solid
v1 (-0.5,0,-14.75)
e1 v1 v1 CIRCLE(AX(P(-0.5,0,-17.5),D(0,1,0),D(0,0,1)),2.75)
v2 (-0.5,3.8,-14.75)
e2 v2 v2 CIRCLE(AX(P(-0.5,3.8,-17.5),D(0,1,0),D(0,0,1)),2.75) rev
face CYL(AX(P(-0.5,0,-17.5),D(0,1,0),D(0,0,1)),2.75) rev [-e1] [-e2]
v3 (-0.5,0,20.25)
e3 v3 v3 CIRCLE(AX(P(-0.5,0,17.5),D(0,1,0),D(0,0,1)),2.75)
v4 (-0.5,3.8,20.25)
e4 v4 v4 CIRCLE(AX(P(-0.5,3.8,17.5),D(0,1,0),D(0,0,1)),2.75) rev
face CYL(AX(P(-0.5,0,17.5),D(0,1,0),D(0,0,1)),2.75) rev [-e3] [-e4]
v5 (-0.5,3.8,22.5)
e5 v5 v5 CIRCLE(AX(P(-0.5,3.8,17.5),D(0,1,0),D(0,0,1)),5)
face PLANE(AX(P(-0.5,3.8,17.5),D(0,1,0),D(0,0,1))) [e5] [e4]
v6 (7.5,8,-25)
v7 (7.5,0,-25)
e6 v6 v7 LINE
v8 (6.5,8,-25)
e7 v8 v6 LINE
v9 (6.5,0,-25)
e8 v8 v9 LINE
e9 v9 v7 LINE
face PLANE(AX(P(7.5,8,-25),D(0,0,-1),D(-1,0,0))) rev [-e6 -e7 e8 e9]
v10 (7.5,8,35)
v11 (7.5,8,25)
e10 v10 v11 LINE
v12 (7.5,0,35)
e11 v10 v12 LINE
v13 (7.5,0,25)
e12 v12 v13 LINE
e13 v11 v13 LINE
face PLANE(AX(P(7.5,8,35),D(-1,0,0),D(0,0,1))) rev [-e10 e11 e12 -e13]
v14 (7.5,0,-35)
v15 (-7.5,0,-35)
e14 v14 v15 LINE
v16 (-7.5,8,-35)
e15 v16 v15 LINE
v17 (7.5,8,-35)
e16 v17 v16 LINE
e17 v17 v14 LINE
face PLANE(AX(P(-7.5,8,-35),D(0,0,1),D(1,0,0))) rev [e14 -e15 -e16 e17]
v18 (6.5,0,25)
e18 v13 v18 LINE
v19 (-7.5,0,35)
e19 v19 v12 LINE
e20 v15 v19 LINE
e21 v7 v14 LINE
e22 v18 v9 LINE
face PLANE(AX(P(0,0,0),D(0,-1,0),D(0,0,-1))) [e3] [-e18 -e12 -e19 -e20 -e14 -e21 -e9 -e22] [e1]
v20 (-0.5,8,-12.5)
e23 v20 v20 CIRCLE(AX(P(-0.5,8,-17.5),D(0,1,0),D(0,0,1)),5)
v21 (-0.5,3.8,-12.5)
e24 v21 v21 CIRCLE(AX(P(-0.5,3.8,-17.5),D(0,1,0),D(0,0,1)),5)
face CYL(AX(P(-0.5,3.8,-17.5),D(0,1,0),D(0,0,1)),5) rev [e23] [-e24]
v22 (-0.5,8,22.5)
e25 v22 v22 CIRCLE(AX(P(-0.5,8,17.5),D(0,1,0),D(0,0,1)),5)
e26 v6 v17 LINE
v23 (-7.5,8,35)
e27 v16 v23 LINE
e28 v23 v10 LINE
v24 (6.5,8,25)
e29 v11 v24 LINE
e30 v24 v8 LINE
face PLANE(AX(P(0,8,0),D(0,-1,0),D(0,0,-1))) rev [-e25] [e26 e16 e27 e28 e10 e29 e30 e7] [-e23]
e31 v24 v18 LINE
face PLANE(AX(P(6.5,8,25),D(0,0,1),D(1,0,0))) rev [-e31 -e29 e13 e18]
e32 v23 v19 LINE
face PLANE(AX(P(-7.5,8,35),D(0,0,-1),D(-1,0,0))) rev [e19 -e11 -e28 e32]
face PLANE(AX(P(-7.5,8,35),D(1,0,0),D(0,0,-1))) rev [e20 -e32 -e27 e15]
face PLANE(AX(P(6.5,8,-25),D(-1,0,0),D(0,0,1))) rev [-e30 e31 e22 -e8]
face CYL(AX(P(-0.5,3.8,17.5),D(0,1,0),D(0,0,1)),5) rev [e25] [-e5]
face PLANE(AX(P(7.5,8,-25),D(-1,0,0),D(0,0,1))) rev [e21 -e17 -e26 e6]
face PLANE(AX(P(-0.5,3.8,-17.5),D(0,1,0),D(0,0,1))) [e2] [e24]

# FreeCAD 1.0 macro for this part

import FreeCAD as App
import Part
import Sketcher
Q = App.Units.Quantity

doc = App.newDocument("Part")
body = doc.addObject("PartDesign::Body", "Body")

sketch1 = body.newObject("Sketcher::SketchObject", "Sketch")
sketch1.AttachmentSupport = (doc.getObject("XZ_Plane"), [""])
sketch1.MapMode = "FlatFace"
sketch1.addGeometry(Part.LineSegment(App.Vector(6.5, -25, 0), App.Vector(7.5, -25, 0)), False)
sketch1.addGeometry(Part.LineSegment(App.Vector(7.5, -25, 0), App.Vector(7.5, -35, 0)), False)
sketch1.addGeometry(Part.LineSegment(App.Vector(7.5, -35, 0), App.Vector(-7.5, -35, 0)), False)
sketch1.addGeometry(Part.LineSegment(App.Vector(-7.5, -35, 0), App.Vector(-7.5, 35, 0)), False)
sketch1.addGeometry(Part.LineSegment(App.Vector(-7.5, 35, 0), App.Vector(7.5, 35, 0)), False)
sketch1.addGeometry(Part.LineSegment(App.Vector(7.5, 35, 0), App.Vector(7.5, 25, 0)), False)
sketch1.addGeometry(Part.LineSegment(App.Vector(7.5, 25, 0), App.Vector(6.5, 25, 0)), False)
sketch1.addGeometry(Part.LineSegment(App.Vector(6.5, 25, 0), App.Vector(6.5, -25, 0)), False)
sketch1.addConstraint(Sketcher.Constraint("Coincident", 0, 2, 1, 1))
sketch1.addConstraint(Sketcher.Constraint("Coincident", 1, 2, 2, 1))
sketch1.addConstraint(Sketcher.Constraint("Coincident", 2, 2, 3, 1))
sketch1.addConstraint(Sketcher.Constraint("Coincident", 3, 2, 4, 1))
sketch1.addConstraint(Sketcher.Constraint("Coincident", 4, 2, 5, 1))
sketch1.addConstraint(Sketcher.Constraint("Coincident", 5, 2, 6, 1))
sketch1.addConstraint(Sketcher.Constraint("Coincident", 6, 2, 7, 1))
sketch1.addConstraint(Sketcher.Constraint("Coincident", 7, 2, 0, 1))
sketch1.addConstraint(Sketcher.Constraint("Horizontal", 0))
sketch1.addConstraint(Sketcher.Constraint("Vertical", 1))
sketch1.addConstraint(Sketcher.Constraint("Horizontal", 2))
sketch1.addConstraint(Sketcher.Constraint("Vertical", 3))
sketch1.addConstraint(Sketcher.Constraint("Horizontal", 4))
sketch1.addConstraint(Sketcher.Constraint("Vertical", 5))
sketch1.addConstraint(Sketcher.Constraint("Horizontal", 6))
sketch1.addConstraint(Sketcher.Constraint("Vertical", 7))
sketch1.addConstraint(Sketcher.Constraint("Symmetric", 1, 2, 3, 2, -1, 1))
sketch1.addConstraint(Sketcher.Constraint("Symmetric", 0, 2, 5, 2, -1))
sketch1.addConstraint(Sketcher.Constraint("DistanceX", 0, 1, 0, 2, Q("1 mm")))
sketch1.addConstraint(Sketcher.Constraint("DistanceX", 2, 2, 2, 1, Q("15 mm")))
sketch1.addConstraint(Sketcher.Constraint("DistanceY", 1, 2, 1, 1, Q("10 mm")))
sketch1.addConstraint(Sketcher.Constraint("DistanceY", 3, 1, 3, 2, Q("70 mm")))
pad1 = body.newObject("PartDesign::Pad", "Pad")
pad1.Profile = sketch1
pad1.Length = 8
pad1.Reversed = True

sketch2 = body.newObject("Sketcher::SketchObject", "Sketch001")
sketch2.AttachmentSupport = (doc.getObject("XZ_Plane"), [""])
sketch2.MapMode = "FlatFace"
sketch2.AttachmentOffset = App.Placement(App.Vector(0, 0, -8), App.Rotation())
sketch2.addGeometry(Part.Circle(App.Vector(-0.5, -17.5, 0), App.Vector(0, 0, 1), 2.8), False)
sketch2.addGeometry(Part.Circle(App.Vector(-0.5, 17.5, 0), App.Vector(0, 0, 1), 2.8), False)
sketch2.addConstraint(Sketcher.Constraint("Equal", 0, 1))
sketch2.addConstraint(Sketcher.Constraint("Symmetric", 0, 3, 1, 3, -1))
sketch2.addConstraint(Sketcher.Constraint("Diameter", 0, Q("5.5 mm")))
sketch2.addConstraint(Sketcher.Constraint("DistanceY", 0, 3, 1, 3, Q("35 mm")))
sketch2.addConstraint(Sketcher.Constraint("DistanceX", 0, 3, -1, 1, Q("0.5 mm")))
pocket1 = body.newObject("PartDesign::Pocket", "Pocket")
pocket1.Profile = sketch2
pocket1.Type = "ThroughAll"
pocket1.Reversed = True

sketch3 = body.newObject("Sketcher::SketchObject", "Sketch002")
sketch3.AttachmentSupport = (doc.getObject("XZ_Plane"), [""])
sketch3.MapMode = "FlatFace"
sketch3.AttachmentOffset = App.Placement(App.Vector(0, 0, -8), App.Rotation())
sketch3.addGeometry(Part.Circle(App.Vector(0, -18, 0), App.Vector(0, 0, 1), 5), False)
sketch3.addGeometry(Part.Circle(App.Vector(0, 18, 0), App.Vector(0, 0, 1), 5), False)
sketch3.addConstraint(Sketcher.Constraint("Equal", 0, 1))
sketch3.addConstraint(Sketcher.Constraint("Symmetric", 0, 3, 1, 3, -1))
sketch3.addConstraint(Sketcher.Constraint("Diameter", 0, Q("10 mm")))
sketch3.addConstraint(Sketcher.Constraint("DistanceY", 0, 3, 1, 3, Q("35 mm")))
sketch3.addConstraint(Sketcher.Constraint("DistanceX", 0, 3, -1, 1, Q("0.5 mm")))
pocket2 = body.newObject("PartDesign::Pocket", "Pocket001")
pocket2.Profile = sketch3
pocket2.Length = 4.2
pocket2.Reversed = True

doc.recompute()
